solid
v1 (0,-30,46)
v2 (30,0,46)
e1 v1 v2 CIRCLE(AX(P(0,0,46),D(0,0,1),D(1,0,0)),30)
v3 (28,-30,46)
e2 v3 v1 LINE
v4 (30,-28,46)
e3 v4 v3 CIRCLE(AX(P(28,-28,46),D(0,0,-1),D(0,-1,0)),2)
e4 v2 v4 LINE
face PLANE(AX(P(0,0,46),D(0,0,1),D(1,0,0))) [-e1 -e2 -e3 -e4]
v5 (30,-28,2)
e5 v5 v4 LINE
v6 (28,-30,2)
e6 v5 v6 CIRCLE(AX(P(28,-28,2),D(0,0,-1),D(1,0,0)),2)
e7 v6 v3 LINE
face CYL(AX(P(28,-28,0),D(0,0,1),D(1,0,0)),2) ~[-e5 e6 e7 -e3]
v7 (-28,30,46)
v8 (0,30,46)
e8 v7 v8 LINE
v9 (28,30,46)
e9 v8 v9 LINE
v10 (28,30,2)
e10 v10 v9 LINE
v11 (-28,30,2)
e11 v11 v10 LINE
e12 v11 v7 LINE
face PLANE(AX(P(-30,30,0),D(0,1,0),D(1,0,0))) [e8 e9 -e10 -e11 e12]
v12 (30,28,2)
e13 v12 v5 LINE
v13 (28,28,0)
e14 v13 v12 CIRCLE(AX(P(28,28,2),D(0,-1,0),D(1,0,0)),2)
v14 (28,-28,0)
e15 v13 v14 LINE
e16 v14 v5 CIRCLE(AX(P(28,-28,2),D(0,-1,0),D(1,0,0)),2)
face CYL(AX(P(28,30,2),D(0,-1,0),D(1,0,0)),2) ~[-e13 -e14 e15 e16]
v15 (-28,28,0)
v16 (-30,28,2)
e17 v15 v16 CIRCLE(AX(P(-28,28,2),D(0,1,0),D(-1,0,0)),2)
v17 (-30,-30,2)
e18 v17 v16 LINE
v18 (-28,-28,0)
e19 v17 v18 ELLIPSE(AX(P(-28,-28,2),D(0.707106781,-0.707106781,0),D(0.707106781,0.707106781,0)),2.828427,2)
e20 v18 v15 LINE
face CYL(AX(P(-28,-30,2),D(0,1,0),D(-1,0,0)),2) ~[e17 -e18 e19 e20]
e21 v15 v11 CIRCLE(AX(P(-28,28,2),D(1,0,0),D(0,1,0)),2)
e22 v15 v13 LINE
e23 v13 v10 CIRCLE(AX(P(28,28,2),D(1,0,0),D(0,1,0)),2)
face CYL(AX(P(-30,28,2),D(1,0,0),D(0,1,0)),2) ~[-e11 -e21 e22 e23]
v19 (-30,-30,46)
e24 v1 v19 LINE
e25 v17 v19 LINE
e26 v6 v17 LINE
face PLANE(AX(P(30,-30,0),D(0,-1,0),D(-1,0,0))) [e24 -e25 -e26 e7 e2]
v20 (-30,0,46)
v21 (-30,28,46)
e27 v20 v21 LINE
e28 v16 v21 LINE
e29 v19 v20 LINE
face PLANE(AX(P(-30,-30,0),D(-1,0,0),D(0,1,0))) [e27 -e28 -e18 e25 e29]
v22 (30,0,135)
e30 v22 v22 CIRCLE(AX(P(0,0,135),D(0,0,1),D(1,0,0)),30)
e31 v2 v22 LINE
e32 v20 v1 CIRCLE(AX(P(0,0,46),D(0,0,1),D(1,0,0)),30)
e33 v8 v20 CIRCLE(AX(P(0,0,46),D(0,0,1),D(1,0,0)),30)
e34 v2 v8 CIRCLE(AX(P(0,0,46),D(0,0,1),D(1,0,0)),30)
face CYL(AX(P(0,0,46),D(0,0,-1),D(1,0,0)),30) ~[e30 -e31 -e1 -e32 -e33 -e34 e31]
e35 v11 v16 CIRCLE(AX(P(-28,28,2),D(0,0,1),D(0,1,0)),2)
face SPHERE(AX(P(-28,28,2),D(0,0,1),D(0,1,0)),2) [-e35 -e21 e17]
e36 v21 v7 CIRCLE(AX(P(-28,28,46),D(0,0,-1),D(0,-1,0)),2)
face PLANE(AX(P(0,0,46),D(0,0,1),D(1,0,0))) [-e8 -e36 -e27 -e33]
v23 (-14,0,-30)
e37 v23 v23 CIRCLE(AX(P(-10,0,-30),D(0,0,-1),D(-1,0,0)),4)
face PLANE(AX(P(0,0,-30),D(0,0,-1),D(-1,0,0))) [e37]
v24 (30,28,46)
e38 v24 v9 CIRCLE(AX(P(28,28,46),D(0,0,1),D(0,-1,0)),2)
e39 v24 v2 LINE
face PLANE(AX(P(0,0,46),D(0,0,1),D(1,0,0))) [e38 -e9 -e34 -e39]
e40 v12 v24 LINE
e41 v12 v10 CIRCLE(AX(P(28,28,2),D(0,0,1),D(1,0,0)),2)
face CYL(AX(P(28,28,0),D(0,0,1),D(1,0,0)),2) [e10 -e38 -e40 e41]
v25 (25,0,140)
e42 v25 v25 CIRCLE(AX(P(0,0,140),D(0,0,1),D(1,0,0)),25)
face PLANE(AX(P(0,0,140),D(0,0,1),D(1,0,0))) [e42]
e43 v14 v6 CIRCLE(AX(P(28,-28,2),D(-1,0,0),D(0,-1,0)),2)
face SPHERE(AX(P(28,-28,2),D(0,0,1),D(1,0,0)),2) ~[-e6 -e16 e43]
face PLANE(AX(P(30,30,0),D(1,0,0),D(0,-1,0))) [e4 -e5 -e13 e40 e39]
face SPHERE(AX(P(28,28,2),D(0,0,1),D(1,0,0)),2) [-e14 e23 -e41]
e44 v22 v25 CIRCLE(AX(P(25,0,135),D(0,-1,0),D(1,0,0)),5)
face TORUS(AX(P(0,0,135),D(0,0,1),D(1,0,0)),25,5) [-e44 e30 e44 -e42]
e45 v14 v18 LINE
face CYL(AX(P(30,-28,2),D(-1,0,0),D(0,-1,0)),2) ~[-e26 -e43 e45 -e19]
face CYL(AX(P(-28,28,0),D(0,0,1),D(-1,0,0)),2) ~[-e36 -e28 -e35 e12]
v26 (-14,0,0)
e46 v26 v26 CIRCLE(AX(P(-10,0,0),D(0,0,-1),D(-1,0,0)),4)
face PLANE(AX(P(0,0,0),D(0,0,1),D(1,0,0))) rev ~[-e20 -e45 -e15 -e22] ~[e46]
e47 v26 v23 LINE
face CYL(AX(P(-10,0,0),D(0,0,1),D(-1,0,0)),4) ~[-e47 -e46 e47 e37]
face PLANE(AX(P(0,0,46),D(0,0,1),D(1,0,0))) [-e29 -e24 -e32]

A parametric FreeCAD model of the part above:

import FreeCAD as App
import Part
import Sketcher

V = App.Vector
Q = App.Units.Quantity


def edges_at(feature, points):
    """Names of the edges that pass closest to the given points."""
    edges = feature.Shape.Edges
    near = lambda p: min(range(len(edges)), key=lambda i: edges[i].distToShape(Part.Vertex(*p))[0])
    return sorted({f"Edge{near(p) + 1}" for p in points})

doc = App.newDocument("Part")
body = doc.addObject("PartDesign::Body", "Body")

sketch1 = doc.addObject("Sketcher::SketchObject", "Sketch")
body.addObject(sketch1)
sketch1.AttachmentSupport = (doc.XY_Plane, [""])
sketch1.MapMode = "FlatFace"
sketch1.addGeometry([
    Part.LineSegment(V(30, 30, 0), V(-30, 30, 0)),
    Part.LineSegment(V(-30, 30, 0), V(-30, -30, 0)),
    Part.LineSegment(V(-30, -30, 0), V(30, -30, 0)),
    Part.LineSegment(V(30, -30, 0), V(30, 30, 0)),
], False)
sketch1.addConstraint([
    Sketcher.Constraint("Coincident", 0, 2, 1, 1),
    Sketcher.Constraint("Coincident", 1, 2, 2, 1),
    Sketcher.Constraint("Coincident", 2, 2, 3, 1),
    Sketcher.Constraint("Coincident", 3, 2, 0, 1),
    Sketcher.Constraint("Horizontal", 0),
    Sketcher.Constraint("Vertical", 1),
    Sketcher.Constraint("Horizontal", 2),
    Sketcher.Constraint("Vertical", 3),
    Sketcher.Constraint("Symmetric", 0, 2, 2, 2, -1, 1),
    Sketcher.Constraint("Equal", 2, 1),
    Sketcher.Constraint("DistanceX", 0, 2, 0, 1, Q("60 mm")),
])
pad1 = doc.addObject("PartDesign::Pad", "Pad")
body.addObject(pad1)
pad1.Profile = sketch1
pad1.Length = 46

sketch2 = doc.addObject("Sketcher::SketchObject", "Sketch001")
body.addObject(sketch2)
sketch2.AttachmentSupport = (doc.XY_Plane, [""])
sketch2.MapMode = "FlatFace"
sketch2.AttachmentOffset = App.Placement(V(0, 0, 46), App.Rotation())
sketch2.addGeometry(Part.Circle(V(0, 0, 0), V(0, 0, 1), 30), False)
sketch2.addConstraint([
    Sketcher.Constraint("Coincident", 0, 3, -1, 1),
    Sketcher.Constraint("Diameter", 0, Q("60 mm")),
])
pad2 = doc.addObject("PartDesign::Pad", "Pad001")
body.addObject(pad2)
pad2.Profile = sketch2
pad2.Length = 94
doc.recompute()

fillet = doc.addObject("PartDesign::Fillet", "Fillet")
body.addObject(fillet)
fillet.Base = (pad2, edges_at(pad2, [(-30, 0, 140)]))
fillet.Radius = 5
doc.recompute()

fillet2 = doc.addObject("PartDesign::Fillet", "Fillet001")
body.addObject(fillet2)
fillet2.Base = (fillet, edges_at(fillet, [
    (30, 30, 23),
    (30, -30, 23),
    (30, 0, 0),
    (-30, 30, 23),
    (0, 30, 0),
    (-30, 0, 0),
    (0, -30, 0),
]))
fillet2.Radius = 2

sketch3 = doc.addObject("Sketcher::SketchObject", "Sketch002")
body.addObject(sketch3)
sketch3.AttachmentSupport = (doc.XY_Plane, [""])
sketch3.MapMode = "FlatFace"
sketch3.addGeometry(Part.Circle(V(-10, 0, 0), V(0, 0, 1), 4), False)
sketch3.addConstraint([
    Sketcher.Constraint("PointOnObject", 0, 3, -1),
    Sketcher.Constraint("Diameter", 0, Q("8 mm")),
    Sketcher.Constraint("DistanceX", 0, 3, -1, 1, Q("10 mm")),
])
pad3 = doc.addObject("PartDesign::Pad", "Pad002")
body.addObject(pad3)
pad3.Profile = sketch3
pad3.Length = 30
pad3.Reversed = True

doc.recompute()
